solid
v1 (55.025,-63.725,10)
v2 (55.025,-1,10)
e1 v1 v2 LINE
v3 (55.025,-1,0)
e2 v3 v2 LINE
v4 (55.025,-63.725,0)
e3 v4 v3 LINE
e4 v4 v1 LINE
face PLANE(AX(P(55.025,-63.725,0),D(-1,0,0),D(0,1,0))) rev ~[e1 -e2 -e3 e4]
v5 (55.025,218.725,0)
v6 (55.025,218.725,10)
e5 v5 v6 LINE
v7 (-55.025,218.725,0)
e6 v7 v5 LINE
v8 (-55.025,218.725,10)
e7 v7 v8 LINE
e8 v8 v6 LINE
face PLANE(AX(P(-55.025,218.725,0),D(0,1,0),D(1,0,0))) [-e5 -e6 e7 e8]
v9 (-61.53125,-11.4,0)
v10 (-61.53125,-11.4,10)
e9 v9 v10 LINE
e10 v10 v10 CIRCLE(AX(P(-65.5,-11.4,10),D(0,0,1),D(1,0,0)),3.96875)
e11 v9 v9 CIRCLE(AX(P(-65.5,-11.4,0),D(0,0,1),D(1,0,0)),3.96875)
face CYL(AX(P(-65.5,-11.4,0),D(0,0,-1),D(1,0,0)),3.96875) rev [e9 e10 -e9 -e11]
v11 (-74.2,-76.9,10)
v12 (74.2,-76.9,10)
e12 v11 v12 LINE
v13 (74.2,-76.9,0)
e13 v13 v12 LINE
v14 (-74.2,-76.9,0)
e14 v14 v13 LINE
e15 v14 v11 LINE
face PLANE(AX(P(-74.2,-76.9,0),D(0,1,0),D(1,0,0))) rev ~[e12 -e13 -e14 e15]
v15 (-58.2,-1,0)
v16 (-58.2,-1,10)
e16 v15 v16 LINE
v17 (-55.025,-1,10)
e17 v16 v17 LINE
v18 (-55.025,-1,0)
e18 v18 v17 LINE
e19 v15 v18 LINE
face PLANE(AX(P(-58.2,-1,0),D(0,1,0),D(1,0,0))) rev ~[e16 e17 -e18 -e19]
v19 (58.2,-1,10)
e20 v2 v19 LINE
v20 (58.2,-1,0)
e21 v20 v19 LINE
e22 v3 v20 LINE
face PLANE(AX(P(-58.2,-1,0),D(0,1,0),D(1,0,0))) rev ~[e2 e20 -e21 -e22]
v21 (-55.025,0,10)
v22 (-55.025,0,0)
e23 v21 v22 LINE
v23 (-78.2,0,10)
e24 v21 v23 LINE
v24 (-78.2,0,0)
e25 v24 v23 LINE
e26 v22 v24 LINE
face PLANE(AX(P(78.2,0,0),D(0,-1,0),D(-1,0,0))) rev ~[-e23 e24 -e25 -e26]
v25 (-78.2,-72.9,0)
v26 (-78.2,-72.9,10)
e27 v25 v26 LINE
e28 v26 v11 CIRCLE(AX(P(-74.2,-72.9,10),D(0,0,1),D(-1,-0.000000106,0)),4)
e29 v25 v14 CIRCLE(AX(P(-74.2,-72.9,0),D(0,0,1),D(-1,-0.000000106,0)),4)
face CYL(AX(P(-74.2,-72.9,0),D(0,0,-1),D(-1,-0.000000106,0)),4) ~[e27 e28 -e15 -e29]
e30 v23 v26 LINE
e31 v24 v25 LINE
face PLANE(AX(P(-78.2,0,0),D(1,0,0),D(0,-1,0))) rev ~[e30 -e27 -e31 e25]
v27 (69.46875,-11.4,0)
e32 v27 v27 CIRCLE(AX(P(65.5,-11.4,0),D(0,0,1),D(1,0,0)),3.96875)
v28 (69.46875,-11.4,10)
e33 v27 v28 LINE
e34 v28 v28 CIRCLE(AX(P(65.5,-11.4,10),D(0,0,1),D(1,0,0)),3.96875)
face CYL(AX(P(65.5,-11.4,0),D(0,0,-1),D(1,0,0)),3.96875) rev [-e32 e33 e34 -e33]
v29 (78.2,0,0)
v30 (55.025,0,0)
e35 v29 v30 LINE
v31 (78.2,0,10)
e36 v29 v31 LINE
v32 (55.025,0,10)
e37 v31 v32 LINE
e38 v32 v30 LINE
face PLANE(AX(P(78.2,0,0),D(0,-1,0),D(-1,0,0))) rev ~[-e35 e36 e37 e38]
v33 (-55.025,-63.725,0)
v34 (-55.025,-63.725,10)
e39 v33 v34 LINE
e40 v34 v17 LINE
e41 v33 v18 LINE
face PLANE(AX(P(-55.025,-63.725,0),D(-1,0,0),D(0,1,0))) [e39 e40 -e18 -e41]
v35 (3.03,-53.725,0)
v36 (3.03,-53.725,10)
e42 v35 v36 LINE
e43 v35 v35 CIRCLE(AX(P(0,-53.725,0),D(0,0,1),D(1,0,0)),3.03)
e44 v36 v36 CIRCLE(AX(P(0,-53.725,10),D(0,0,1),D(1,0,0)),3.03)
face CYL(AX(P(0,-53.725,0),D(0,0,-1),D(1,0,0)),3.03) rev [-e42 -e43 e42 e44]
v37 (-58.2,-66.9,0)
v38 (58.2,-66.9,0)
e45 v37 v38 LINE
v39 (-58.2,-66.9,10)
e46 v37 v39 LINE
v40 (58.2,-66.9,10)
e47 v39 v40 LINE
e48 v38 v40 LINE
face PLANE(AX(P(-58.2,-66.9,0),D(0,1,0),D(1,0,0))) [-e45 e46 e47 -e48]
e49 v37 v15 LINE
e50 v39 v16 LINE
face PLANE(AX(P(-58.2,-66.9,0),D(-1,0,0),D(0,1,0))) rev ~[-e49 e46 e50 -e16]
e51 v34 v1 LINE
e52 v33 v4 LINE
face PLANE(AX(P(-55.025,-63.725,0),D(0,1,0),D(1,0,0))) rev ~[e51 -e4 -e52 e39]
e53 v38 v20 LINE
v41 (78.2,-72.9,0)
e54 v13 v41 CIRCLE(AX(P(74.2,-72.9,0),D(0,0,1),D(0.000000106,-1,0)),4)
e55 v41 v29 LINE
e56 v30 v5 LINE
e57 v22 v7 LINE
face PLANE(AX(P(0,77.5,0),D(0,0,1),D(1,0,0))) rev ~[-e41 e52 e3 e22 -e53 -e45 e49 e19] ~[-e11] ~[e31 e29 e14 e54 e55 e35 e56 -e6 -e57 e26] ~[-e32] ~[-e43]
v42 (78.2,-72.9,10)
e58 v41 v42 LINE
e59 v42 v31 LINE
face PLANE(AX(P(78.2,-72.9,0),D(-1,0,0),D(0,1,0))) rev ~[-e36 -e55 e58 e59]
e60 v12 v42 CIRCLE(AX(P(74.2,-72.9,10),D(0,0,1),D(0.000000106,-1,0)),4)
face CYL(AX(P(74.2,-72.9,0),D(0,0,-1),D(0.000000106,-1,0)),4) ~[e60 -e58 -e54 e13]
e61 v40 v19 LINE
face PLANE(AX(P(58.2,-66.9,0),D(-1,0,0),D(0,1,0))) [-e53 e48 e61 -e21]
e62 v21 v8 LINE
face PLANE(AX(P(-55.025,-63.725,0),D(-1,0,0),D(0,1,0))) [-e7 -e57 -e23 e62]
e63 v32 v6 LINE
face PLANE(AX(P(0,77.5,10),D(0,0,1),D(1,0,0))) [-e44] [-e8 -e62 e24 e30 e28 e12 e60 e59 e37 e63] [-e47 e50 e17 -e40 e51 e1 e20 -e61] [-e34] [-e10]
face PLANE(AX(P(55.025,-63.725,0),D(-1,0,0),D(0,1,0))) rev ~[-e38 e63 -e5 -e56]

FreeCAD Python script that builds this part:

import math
import FreeCAD as App
import Part
import Sketcher


def add_polygon(sketch, points):
    """Adds a closed chain of lines whose ends are joined by coincident constraints."""
    first, n = sketch.GeometryCount, len(points)
    for a, b in zip(points, points[1:] + points[:1]):
        sketch.addGeometry(Part.LineSegment(App.Vector(*a, 0), App.Vector(*b, 0)), False)
    for i in range(n):
        sketch.addConstraint(Sketcher.Constraint("Coincident", first + i, 2, first + (i + 1) % n, 1))

doc = App.newDocument("Part")
params = doc.addObject("Spreadsheet::Sheet", "Params")
for row, (alias, value) in enumerate([
    ("sketch1_radius", "4 mm"),
    ("sketch1_width", "156.4 mm"),
    ("sketch1_width2", "116.4 mm"),
    ("sketch1_height", "72.9 mm"),
    ("sketch1_height2", "65.9 mm"),
    ("pad1_length", "10 mm"),
    ("sketch2_width", "110.05 mm"),
    ("sketch2_height", "282.45 mm"),
    ("pad2_length", "10 mm"),
    ("sketch3_diameter", "6.06 mm"),
    ("pocket1_length", "10 mm"),
], start=1):
    params.set(f"A{row}", alias)
    params.set(f"B{row}", "=" + value)
    params.setAlias(f"B{row}", alias)

body = doc.addObject("PartDesign::Body", "Body")

# Sketch on XY plane
sketch1 = body.newObject("Sketcher::SketchObject", "Sketch")
sketch1.AttachmentSupport = (doc.getObject("XY_Plane"), [""])
sketch1.MapMode = "FlatFace"
sketch1.addGeometry(Part.LineSegment(App.Vector(78.2, 0, 0), App.Vector(-78.2, 0, 0)), False)  # 0
sketch1.addGeometry(Part.LineSegment(App.Vector(-78.2, 0, 0), App.Vector(-78.2, -72.9, 0)), False)  # 1
sketch1.addGeometry(Part.ArcOfCircle(Part.Circle(App.Vector(-74.2, -72.9, 0), App.Vector(0, 0, 1), 4), math.radians(-180), math.radians(-90)), False)  # 2
sketch1.addGeometry(Part.LineSegment(App.Vector(-74.2, -76.9, 0), App.Vector(74.2, -76.9, 0)), False)  # 3
sketch1.addGeometry(Part.ArcOfCircle(Part.Circle(App.Vector(74.2, -72.9, 0), App.Vector(0, 0, 1), 4), math.radians(-90), math.radians(0)), False)  # 4
sketch1.addGeometry(Part.LineSegment(App.Vector(78.2, -72.9, 0), App.Vector(78.2, 0, 0)), False)  # 5
sketch1.addGeometry(Part.Circle(App.Vector(-65.5, -11.4, 0), App.Vector(0, 0, 1), 4), False)  # 6
add_polygon(sketch1, [(58.2, -66.9), (-58.2, -66.9), (-58.2, -1), (58.2, -1)])  # lines 7-10
sketch1.addGeometry(Part.Circle(App.Vector(65.5, -11.4, 0), App.Vector(0, 0, 1), 4), False)  # 11
sketch1.addConstraint(Sketcher.Constraint("Coincident", 0, 2, 1, 1))
sketch1.addConstraint(Sketcher.Constraint("Tangent", 1, 2, 2, 1))
sketch1.addConstraint(Sketcher.Constraint("Tangent", 2, 2, 3, 1))
sketch1.addConstraint(Sketcher.Constraint("Tangent", 3, 2, 4, 1))
sketch1.addConstraint(Sketcher.Constraint("Tangent", 4, 2, 5, 1))
sketch1.addConstraint(Sketcher.Constraint("Coincident", 5, 2, 0, 1))
sketch1.addConstraint(Sketcher.Constraint("Horizontal", 0))
sketch1.addConstraint(Sketcher.Constraint("Vertical", 1))
sketch1.addConstraint(Sketcher.Constraint("Horizontal", 3))
sketch1.addConstraint(Sketcher.Constraint("Vertical", 5))
sketch1.addConstraint(Sketcher.Constraint("Horizontal", 7))
sketch1.addConstraint(Sketcher.Constraint("Vertical", 8))
sketch1.addConstraint(Sketcher.Constraint("Horizontal", 9))
sketch1.addConstraint(Sketcher.Constraint("Vertical", 10))
sketch1.addConstraint(Sketcher.Constraint("Equal", 2, 4))
sketch1.addConstraint(Sketcher.Constraint("Equal", 6, 11))
sketch1.addConstraint(Sketcher.Constraint("Symmetric", 0, 2, 5, 2, -1, 1))
sketch1.addConstraint(Sketcher.Constraint("Symmetric", 6, 3, 11, 3, -2))
sketch1.addConstraint(Sketcher.Constraint("Radius", 2, 4.0))
sketch1.addConstraint(Sketcher.Constraint("DistanceX", 0, 2, 0, 1, 156.4))
sketch1.addConstraint(Sketcher.Constraint("DistanceX", 7, 2, 7, 1, 116.4))
sketch1.addConstraint(Sketcher.Constraint("DistanceY", 1, 2, 1, 1, 72.9))
sketch1.addConstraint(Sketcher.Constraint("DistanceY", 8, 1, 8, 2, 65.9))
sketch1.addConstraint(Sketcher.Constraint("DistanceY", 8, 2, -1, 1, 1.0))
sketch1.addConstraint(Sketcher.Constraint("DistanceX", 6, 3, 11, 3, 131.0))
sketch1.addConstraint(Sketcher.Constraint("DistanceX", 2, 3, 7, 2, 16.0))
sketch1.addConstraint(Sketcher.Constraint("Diameter", 6, 7.9375))
sketch1.addConstraint(Sketcher.Constraint("DistanceY", 6, 3, -1, 1, 11.4))
sketch1.setExpression("Constraints[22]", "Params.sketch1_radius")
sketch1.setExpression("Constraints[23]", "Params.sketch1_width")
sketch1.setExpression("Constraints[24]", "Params.sketch1_width2")
sketch1.setExpression("Constraints[25]", "Params.sketch1_height")
sketch1.setExpression("Constraints[26]", "Params.sketch1_height2")
pad1 = body.newObject("PartDesign::Pad", "Pad")
pad1.Profile = sketch1
pad1.setExpression("Length", "Params.pad1_length")

# Sketch on XY plane
sketch2 = body.newObject("Sketcher::SketchObject", "Sketch001")
sketch2.AttachmentSupport = (doc.getObject("XY_Plane"), [""])
sketch2.MapMode = "FlatFace"
add_polygon(sketch2, [(-55, 219), (-55, -64), (55, -64), (55, 219)])  # lines 0-3
sketch2.addConstraint(Sketcher.Constraint("Vertical", 0))
sketch2.addConstraint(Sketcher.Constraint("Horizontal", 1))
sketch2.addConstraint(Sketcher.Constraint("Vertical", 2))
sketch2.addConstraint(Sketcher.Constraint("Horizontal", 3))
sketch2.addConstraint(Sketcher.Constraint("DistanceX", 1, 1, 1, 2, 110.05))
sketch2.addConstraint(Sketcher.Constraint("DistanceY", 0, 2, 0, 1, 282.45))
sketch2.addConstraint(Sketcher.Constraint("DistanceX", 0, 2, -1, 1, 55.025))
sketch2.addConstraint(Sketcher.Constraint("DistanceY", 0, 2, -1, 1, 63.725))
sketch2.setExpression("Constraints[8]", "Params.sketch2_width")
sketch2.setExpression("Constraints[9]", "Params.sketch2_height")
pad2 = body.newObject("PartDesign::Pad", "Pad001")
pad2.Profile = sketch2
pad2.setExpression("Length", "Params.pad2_length")

# Sketch on XY plane
sketch3 = body.newObject("Sketcher::SketchObject", "Sketch002")
sketch3.AttachmentSupport = (doc.getObject("XY_Plane"), [""])
sketch3.MapMode = "FlatFace"
sketch3.addGeometry(Part.Circle(App.Vector(0, -53.7, 0), App.Vector(0, 0, 1), 3), False)
sketch3.addConstraint(Sketcher.Constraint("PointOnObject", 0, 3, -2))
sketch3.addConstraint(Sketcher.Constraint("Diameter", 0, 6.06))
sketch3.addConstraint(Sketcher.Constraint("DistanceY", 0, 3, -1, 1, 53.725))
sketch3.setExpression("Constraints[1]", "Params.sketch3_diameter")
pocket1 = body.newObject("PartDesign::Pocket", "Pocket")
pocket1.Profile = sketch3
pocket1.setExpression("Length", "Params.pocket1_length")
pocket1.Reversed = True

doc.recompute()
